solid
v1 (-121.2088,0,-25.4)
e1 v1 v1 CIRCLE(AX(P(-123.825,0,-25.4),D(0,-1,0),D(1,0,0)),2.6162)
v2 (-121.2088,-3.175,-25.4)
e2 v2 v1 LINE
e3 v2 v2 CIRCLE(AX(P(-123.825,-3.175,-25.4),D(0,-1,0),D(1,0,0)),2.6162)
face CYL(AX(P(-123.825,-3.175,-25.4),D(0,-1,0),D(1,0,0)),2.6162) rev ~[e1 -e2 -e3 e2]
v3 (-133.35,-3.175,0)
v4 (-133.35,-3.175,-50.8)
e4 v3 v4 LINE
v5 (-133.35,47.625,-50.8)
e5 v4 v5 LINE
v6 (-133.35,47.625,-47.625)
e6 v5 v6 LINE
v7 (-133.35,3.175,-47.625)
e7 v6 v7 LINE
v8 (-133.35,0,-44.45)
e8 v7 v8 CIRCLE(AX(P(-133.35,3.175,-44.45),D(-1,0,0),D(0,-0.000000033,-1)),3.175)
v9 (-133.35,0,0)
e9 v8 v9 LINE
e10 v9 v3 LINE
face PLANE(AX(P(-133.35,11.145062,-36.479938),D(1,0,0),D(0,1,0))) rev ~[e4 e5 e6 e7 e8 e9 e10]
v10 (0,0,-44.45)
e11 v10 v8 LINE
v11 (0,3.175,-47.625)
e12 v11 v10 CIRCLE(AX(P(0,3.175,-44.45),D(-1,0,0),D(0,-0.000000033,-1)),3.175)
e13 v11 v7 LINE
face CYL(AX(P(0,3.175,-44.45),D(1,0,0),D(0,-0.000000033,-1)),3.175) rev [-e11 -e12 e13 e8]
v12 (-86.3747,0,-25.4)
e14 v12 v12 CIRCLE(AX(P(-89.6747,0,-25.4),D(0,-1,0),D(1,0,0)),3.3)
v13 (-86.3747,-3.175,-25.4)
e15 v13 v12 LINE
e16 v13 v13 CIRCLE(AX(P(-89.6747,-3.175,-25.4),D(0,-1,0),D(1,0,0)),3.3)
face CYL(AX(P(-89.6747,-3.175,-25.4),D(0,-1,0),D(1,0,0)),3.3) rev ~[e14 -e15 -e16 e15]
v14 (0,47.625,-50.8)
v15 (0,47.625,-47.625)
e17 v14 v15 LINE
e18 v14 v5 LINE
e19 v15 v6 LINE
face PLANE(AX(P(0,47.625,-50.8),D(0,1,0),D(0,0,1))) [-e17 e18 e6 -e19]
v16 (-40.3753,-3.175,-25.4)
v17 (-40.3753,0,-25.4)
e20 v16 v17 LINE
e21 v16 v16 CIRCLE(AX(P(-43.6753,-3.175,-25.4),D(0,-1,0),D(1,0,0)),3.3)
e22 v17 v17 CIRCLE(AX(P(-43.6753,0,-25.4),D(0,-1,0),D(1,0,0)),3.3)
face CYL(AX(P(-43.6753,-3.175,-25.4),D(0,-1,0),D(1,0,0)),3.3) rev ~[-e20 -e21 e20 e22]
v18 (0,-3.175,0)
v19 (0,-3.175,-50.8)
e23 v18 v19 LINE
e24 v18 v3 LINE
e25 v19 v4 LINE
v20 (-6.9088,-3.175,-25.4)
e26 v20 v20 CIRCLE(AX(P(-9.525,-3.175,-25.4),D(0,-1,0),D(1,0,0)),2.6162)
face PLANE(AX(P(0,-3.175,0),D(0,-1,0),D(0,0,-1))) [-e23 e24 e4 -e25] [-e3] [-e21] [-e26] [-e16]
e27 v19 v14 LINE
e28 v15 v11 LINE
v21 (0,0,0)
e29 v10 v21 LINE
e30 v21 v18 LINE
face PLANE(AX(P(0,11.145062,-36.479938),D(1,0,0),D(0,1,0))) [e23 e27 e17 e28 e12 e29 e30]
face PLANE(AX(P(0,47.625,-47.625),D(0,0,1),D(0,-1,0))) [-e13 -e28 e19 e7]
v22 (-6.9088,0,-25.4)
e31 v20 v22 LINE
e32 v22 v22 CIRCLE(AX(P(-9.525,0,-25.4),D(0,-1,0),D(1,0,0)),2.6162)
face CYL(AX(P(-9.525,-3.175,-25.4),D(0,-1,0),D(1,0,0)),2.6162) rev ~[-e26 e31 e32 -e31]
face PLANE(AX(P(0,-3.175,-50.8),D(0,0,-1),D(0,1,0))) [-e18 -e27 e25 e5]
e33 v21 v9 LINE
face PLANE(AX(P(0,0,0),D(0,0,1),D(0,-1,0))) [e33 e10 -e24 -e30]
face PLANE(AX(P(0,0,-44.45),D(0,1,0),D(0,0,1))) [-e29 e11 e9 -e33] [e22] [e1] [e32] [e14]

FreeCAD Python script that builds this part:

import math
import FreeCAD as App
import Part
import Sketcher
from FreeCAD import Vector
Q = App.Units.Quantity

doc = App.newDocument("Part")
body = doc.addObject("PartDesign::Body", "Body")

# Sketch on YZ plane
sketch1 = body.newObject("Sketcher::SketchObject", "Sketch")
sketch1.AttachmentSupport = (doc.getObject("YZ_Plane"), [""])
sketch1.MapMode = "FlatFace"
sketch1.addGeometry([
    Part.LineSegment(Vector(0, -44.5, 0), Vector(0, 0, 0)),  # 0
    Part.LineSegment(Vector(0, 0, 0), Vector(-3.2, 0, 0)),  # 1
    Part.LineSegment(Vector(-3.2, 0, 0), Vector(-3.2, -50.8, 0)),  # 2
    Part.LineSegment(Vector(-3.2, -50.8, 0), Vector(47.6, -50.8, 0)),  # 3
    Part.LineSegment(Vector(47.6, -50.8, 0), Vector(47.6, -47.6, 0)),  # 4
    Part.LineSegment(Vector(47.6, -47.6, 0), Vector(3.2, -47.6, 0)),  # 5
    Part.ArcOfCircle(Part.Circle(Vector(3.2, -44.4, 0), Vector(0, 0, 1), 3.2), math.radians(-180), math.radians(-90)),  # 6
], False)
sketch1.addConstraint([
    Sketcher.Constraint("Coincident", 0, 2, 1, 1),
    Sketcher.Constraint("Coincident", 1, 2, 2, 1),
    Sketcher.Constraint("Coincident", 2, 2, 3, 1),
    Sketcher.Constraint("Coincident", 3, 2, 4, 1),
    Sketcher.Constraint("Coincident", 4, 2, 5, 1),
    Sketcher.Constraint("Tangent", 5, 2, 6, 2),
    Sketcher.Constraint("Tangent", 6, 1, 0, 1),
    Sketcher.Constraint("Vertical", 0),
    Sketcher.Constraint("Horizontal", 1),
    Sketcher.Constraint("Vertical", 2),
    Sketcher.Constraint("Horizontal", 3),
    Sketcher.Constraint("Vertical", 4),
    Sketcher.Constraint("Horizontal", 5),
    Sketcher.Constraint("Coincident", 0, 2, -1, 1),
    Sketcher.Constraint("Equal", 5, 0),
    Sketcher.Constraint("Equal", 3, 2),
    Sketcher.Constraint("DistanceX", 3, 1, 3, 2, Q("2 in")),
    Sketcher.Constraint("Radius", 6, Q("0.125 in")),
    Sketcher.Constraint("DistanceX", 5, 2, 5, 1, Q("1.75 in")),
])
pad1 = body.newObject("PartDesign::Pad", "Pad")
pad1.Profile = sketch1
pad1.Length = Q("5.25 in")
pad1.Reversed = True

# Sketch on XZ plane
sketch2 = body.newObject("Sketcher::SketchObject", "Sketch001")
sketch2.AttachmentSupport = (doc.getObject("XZ_Plane"), [""])
sketch2.MapMode = "FlatFace"
sketch2.AttachmentOffset = App.Placement(Vector(0, 0, 0.125 * 25.4), App.Rotation())
sketch2.addGeometry([
    Part.Circle(Vector(-123.8, -25.4, 0), Vector(0, 0, 1), 2.6),
    Part.Circle(Vector(-9.5, -25.4, 0), Vector(0, 0, 1), 2.6),
    Part.Circle(Vector(-89.7, -25.4, 0), Vector(0, 0, 1), 3.3),
    Part.Circle(Vector(-43.7, -25.4, 0), Vector(0, 0, 1), 3.3),
], False)
sketch2.addConstraint([
    Sketcher.Constraint("Equal", 0, 1),
    Sketcher.Constraint("Equal", 2, 3),
    Sketcher.Constraint("Horizontal", 0, 3, 1, 3),
    Sketcher.Constraint("Horizontal", 1, 3, 2, 3),
    Sketcher.Constraint("Horizontal", 2, 3, 3, 3),
    Sketcher.Constraint("Diameter", 0, Q("0.206 in")),
    Sketcher.Constraint("DistanceY", 0, 3, -1, 1, Q("1 in")),
    Sketcher.Constraint("DistanceX", 0, 3, 1, 3, Q("4.5 in")),
    Sketcher.Constraint("Diameter", 2, 6.6),
    Sketcher.Constraint("DistanceX", 0, 3, -1, 1, Q("4.875 in")),
    Sketcher.Constraint("DistanceX", 2, 3, 3, 3, Q("1.811 in")),
    Sketcher.Constraint("DistanceX", 2, 3, -1, 1, Q("3.5305 in")),
])
pocket1 = body.newObject("PartDesign::Pocket", "Pocket")
pocket1.Profile = sketch2
pocket1.Type = "ThroughAll"

doc.recompute()
